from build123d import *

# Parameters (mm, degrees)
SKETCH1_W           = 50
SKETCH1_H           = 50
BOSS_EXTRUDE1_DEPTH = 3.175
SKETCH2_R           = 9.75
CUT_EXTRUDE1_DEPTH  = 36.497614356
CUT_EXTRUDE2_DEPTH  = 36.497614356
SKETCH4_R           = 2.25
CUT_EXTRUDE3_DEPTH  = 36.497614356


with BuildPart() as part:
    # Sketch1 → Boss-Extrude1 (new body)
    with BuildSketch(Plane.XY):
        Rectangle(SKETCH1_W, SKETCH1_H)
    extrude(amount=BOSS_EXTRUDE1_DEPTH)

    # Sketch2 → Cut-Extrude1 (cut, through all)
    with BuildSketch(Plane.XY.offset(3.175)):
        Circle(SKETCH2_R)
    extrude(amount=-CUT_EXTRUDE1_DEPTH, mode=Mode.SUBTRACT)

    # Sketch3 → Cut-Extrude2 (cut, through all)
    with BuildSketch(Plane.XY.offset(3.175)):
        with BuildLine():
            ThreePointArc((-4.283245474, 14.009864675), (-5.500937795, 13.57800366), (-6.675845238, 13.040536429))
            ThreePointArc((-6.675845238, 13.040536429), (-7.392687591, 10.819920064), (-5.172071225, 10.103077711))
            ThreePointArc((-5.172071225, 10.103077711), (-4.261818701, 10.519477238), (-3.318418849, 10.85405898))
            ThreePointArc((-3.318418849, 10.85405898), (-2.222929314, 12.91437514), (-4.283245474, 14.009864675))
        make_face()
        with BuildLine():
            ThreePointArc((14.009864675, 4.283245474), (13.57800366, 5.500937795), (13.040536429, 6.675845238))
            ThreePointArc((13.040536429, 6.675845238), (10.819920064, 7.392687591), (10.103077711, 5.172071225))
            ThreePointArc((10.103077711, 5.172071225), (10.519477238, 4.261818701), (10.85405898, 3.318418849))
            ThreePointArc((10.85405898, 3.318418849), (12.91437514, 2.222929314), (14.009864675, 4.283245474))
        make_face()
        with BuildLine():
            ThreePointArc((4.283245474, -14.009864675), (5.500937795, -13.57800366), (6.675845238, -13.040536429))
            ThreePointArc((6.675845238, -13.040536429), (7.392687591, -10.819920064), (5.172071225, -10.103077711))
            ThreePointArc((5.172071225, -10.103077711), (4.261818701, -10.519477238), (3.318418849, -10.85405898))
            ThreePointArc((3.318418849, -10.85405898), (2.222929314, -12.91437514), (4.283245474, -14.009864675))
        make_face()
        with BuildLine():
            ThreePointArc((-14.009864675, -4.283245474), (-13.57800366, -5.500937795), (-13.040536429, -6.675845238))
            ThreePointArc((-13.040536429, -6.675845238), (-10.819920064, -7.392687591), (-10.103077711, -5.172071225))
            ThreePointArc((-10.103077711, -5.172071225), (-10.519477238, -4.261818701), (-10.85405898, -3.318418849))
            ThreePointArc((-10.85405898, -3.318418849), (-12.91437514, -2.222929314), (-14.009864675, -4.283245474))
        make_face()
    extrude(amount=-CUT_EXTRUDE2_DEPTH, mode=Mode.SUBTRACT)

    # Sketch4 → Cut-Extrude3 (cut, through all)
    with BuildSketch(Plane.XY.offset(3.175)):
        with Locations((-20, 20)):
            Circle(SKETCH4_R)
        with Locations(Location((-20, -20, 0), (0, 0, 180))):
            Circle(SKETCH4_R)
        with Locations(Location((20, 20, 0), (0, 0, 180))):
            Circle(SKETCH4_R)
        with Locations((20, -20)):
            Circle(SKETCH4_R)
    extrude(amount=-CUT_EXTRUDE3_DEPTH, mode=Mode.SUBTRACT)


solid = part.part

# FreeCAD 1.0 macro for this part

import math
import FreeCAD as App
import Part
import Sketcher

V = App.Vector

doc = App.newDocument("Part")
params = doc.addObject("Spreadsheet::Sheet", "Params")
for row, (alias, value) in enumerate([
    ("sketch1_width", "50 mm"),
    ("pad1_length", "3.175 mm"),
    ("sketch2_diameter", "19.5 mm"),
    ("sketch3_radius", "14.65 mm"),
    ("sketch3_radius2", "1.65 mm"),
    ("sketch4_diameter", "4.5 mm"),
], start=1):
    params.set(f"A{row}", alias)
    params.set(f"B{row}", "=" + value)
    params.setAlias(f"B{row}", alias)

body = doc.addObject("PartDesign::Body", "Body")

sketch1 = body.newObject("Sketcher::SketchObject", "Sketch")
sketch1.AttachmentSupport = (doc.getObject("XY_Plane"), [""])
sketch1.MapMode = "FlatFace"
sketch1.addGeometry([
    Part.LineSegment(V(-25, 25, 0), V(-25, -25, 0)),
    Part.LineSegment(V(-25, -25, 0), V(25, -25, 0)),
    Part.LineSegment(V(25, -25, 0), V(25, 25, 0)),
    Part.LineSegment(V(25, 25, 0), V(-25, 25, 0)),
], False)
sketch1.addConstraint([
    Sketcher.Constraint("Coincident", 0, 2, 1, 1),
    Sketcher.Constraint("Coincident", 1, 2, 2, 1),
    Sketcher.Constraint("Coincident", 2, 2, 3, 1),
    Sketcher.Constraint("Coincident", 3, 2, 0, 1),
    Sketcher.Constraint("Vertical", 0),
    Sketcher.Constraint("Horizontal", 1),
    Sketcher.Constraint("Vertical", 2),
    Sketcher.Constraint("Horizontal", 3),
    Sketcher.Constraint("Symmetric", 0, 2, 2, 2, -1, 1),
    Sketcher.Constraint("Equal", 3, 0),
    Sketcher.Constraint("DistanceX", 1, 1, 1, 2, 50.0),
])
sketch1.setExpression("Constraints[10]", "Params.sketch1_width")
pad1 = body.newObject("PartDesign::Pad", "Pad")
pad1.Profile = sketch1
pad1.setExpression("Length", "Params.pad1_length")

sketch2 = body.newObject("Sketcher::SketchObject", "Sketch001")
sketch2.AttachmentSupport = (doc.getObject("XY_Plane"), [""])
sketch2.MapMode = "FlatFace"
sketch2.AttachmentOffset = App.Placement(V(0, 0, 3.175), App.Rotation())
sketch2.addGeometry(Part.Circle(V(0, 0, 0), V(0, 0, 1), 10), False)
sketch2.addConstraint([
    Sketcher.Constraint("Coincident", 0, 3, -1, 1),
    Sketcher.Constraint("Diameter", 0, 19.5),
])
sketch2.setExpression("Constraints[1]", "Params.sketch2_diameter")
pocket1 = body.newObject("PartDesign::Pocket", "Pocket")
pocket1.Profile = sketch2
pocket1.Type = "ThroughAll"

sketch3 = body.newObject("Sketcher::SketchObject", "Sketch002")
sketch3.AttachmentSupport = (doc.getObject("XY_Plane"), [""])
sketch3.MapMode = "FlatFace"
sketch3.AttachmentOffset = App.Placement(V(0, 0, 3.175), App.Rotation())
sketch3.addGeometry([
    Part.ArcOfCircle(Part.Circle(V(0, 0, 0), V(0, 0, 1), 14.6), math.radians(107), math.radians(117.11)),
    Part.ArcOfCircle(Part.Circle(V(-5.9, 11.6, 0), V(0, 0, 1), 1.6), math.radians(117), math.radians(297)),
    Part.ArcOfCircle(Part.Circle(V(0, 0, 0), V(0, 0, 1), 11.3), math.radians(107), math.radians(117.11)),
    Part.ArcOfCircle(Part.Circle(V(-3.8, 12.4, 0), V(0, 0, 1), 1.6), math.radians(-73), math.radians(107)),
    Part.ArcOfCircle(Part.Circle(V(0, 0, 0), V(0, 0, 1), 14.6), math.radians(17), math.radians(27.11)),
    Part.ArcOfCircle(Part.Circle(V(11.6, 5.9, 0), V(0, 0, 1), 1.6), math.radians(27), math.radians(207)),
    Part.ArcOfCircle(Part.Circle(V(0, 0, 0), V(0, 0, 1), 11.3), math.radians(17), math.radians(27.11)),
    Part.ArcOfCircle(Part.Circle(V(12.4, 3.8, 0), V(0, 0, 1), 1.6), math.radians(-163), math.radians(17)),
    Part.ArcOfCircle(Part.Circle(V(0, 0, 0), V(0, 0, 1), 14.6), math.radians(-73), math.radians(-62.89)),
    Part.ArcOfCircle(Part.Circle(V(5.9, -11.6, 0), V(0, 0, 1), 1.6), math.radians(-63), math.radians(117)),
    Part.ArcOfCircle(Part.Circle(V(0, 0, 0), V(0, 0, 1), 11.3), math.radians(-73), math.radians(-62.89)),
    Part.ArcOfCircle(Part.Circle(V(3.8, -12.4, 0), V(0, 0, 1), 1.6), math.radians(107), math.radians(287)),
    Part.ArcOfCircle(Part.Circle(V(0, 0, 0), V(0, 0, 1), 14.6), math.radians(-163), math.radians(-152.89)),
    Part.ArcOfCircle(Part.Circle(V(-11.6, -5.9, 0), V(0, 0, 1), 1.6), math.radians(-153), math.radians(27)),
    Part.ArcOfCircle(Part.Circle(V(0, 0, 0), V(0, 0, 1), 11.3), math.radians(-163), math.radians(-152.89)),
    Part.ArcOfCircle(Part.Circle(V(-12.4, -3.8, 0), V(0, 0, 1), 1.6), math.radians(17), math.radians(197)),
], False)
sketch3.addConstraint([
    Sketcher.Constraint("Tangent", 0, 2, 1, 1),
    Sketcher.Constraint("Tangent", 1, 2, 2, 2),
    Sketcher.Constraint("Tangent", 2, 1, 3, 1),
    Sketcher.Constraint("Tangent", 3, 2, 0, 1),
    Sketcher.Constraint("Tangent", 4, 2, 5, 1),
    Sketcher.Constraint("Tangent", 5, 2, 6, 2),
    Sketcher.Constraint("Tangent", 6, 1, 7, 1),
    Sketcher.Constraint("Tangent", 7, 2, 4, 1),
    Sketcher.Constraint("Tangent", 8, 2, 9, 1),
    Sketcher.Constraint("Tangent", 9, 2, 10, 2),
    Sketcher.Constraint("Tangent", 10, 1, 11, 1),
    Sketcher.Constraint("Tangent", 11, 2, 8, 1),
    Sketcher.Constraint("Tangent", 12, 2, 13, 1),
    Sketcher.Constraint("Tangent", 13, 2, 14, 2),
    Sketcher.Constraint("Tangent", 14, 1, 15, 1),
    Sketcher.Constraint("Tangent", 15, 2, 12, 1),
    Sketcher.Constraint("Coincident", 0, 3, -1, 1),
    Sketcher.Constraint("Coincident", 2, 3, -1, 1),
    Sketcher.Constraint("Coincident", 4, 3, -1, 1),
    Sketcher.Constraint("Coincident", 6, 3, -1, 1),
    Sketcher.Constraint("Coincident", 8, 3, -1, 1),
    Sketcher.Constraint("Coincident", 10, 3, -1, 1),
    Sketcher.Constraint("Coincident", 12, 3, -1, 1),
    Sketcher.Constraint("Coincident", 14, 3, -1, 1),
    Sketcher.Constraint("Equal", 0, 4),
    Sketcher.Constraint("Equal", 3, 5),
    Sketcher.Constraint("Equal", 4, 8),
    Sketcher.Constraint("Equal", 7, 9),
    Sketcher.Constraint("Equal", 8, 12),
    Sketcher.Constraint("Equal", 11, 13),
    Sketcher.Constraint("Radius", 0, 14.65),
    Sketcher.Constraint("Radius", 1, 1.65),
    Sketcher.Constraint("DistanceX", 0, 2, 3, 2, 2.3926),
    Sketcher.Constraint("DistanceY", 7, 2, 4, 2, 2.3926),
    Sketcher.Constraint("DistanceX", 11, 2, 8, 2, 2.3926),
    Sketcher.Constraint("DistanceY", 12, 2, 15, 2, 2.3926),
    Sketcher.Constraint("DistanceX", 1, 3, -1, 1, 5.923958),
    Sketcher.Constraint("DistanceY", -1, 1, 5, 3, 5.923958),
    Sketcher.Constraint("DistanceX", -1, 1, 9, 3, 5.923958),
    Sketcher.Constraint("DistanceY", 13, 3, -1, 1, 5.923958),
])
sketch3.setExpression("Constraints[30]", "Params.sketch3_radius")
sketch3.setExpression("Constraints[31]", "Params.sketch3_radius2")
pocket2 = body.newObject("PartDesign::Pocket", "Pocket001")
pocket2.Profile = sketch3
pocket2.Type = "ThroughAll"

sketch4 = body.newObject("Sketcher::SketchObject", "Sketch003")
sketch4.AttachmentSupport = (doc.getObject("XY_Plane"), [""])
sketch4.MapMode = "FlatFace"
sketch4.AttachmentOffset = App.Placement(V(0, 0, 3.175), App.Rotation())
sketch4.addGeometry([
    Part.Circle(V(-20, 20, 0), V(0, 0, 1), 2.2),
    Part.Circle(V(-20, -20, 0), V(0, 0, 1), 2.2),
    Part.Circle(V(20, 20, 0), V(0, 0, 1), 2.2),
    Part.Circle(V(20, -20, 0), V(0, 0, 1), 2.2),
], False)
sketch4.addConstraint([
    Sketcher.Constraint("Equal", 0, 1),
    Sketcher.Constraint("Equal", 1, 2),
    Sketcher.Constraint("Equal", 2, 3),
    Sketcher.Constraint("Symmetric", 1, 3, 2, 3, -1, 1),
    Sketcher.Constraint("Symmetric", 0, 3, 3, 3, -1, 1),
    Sketcher.Constraint("Symmetric", 0, 3, 2, 3, -2),
    Sketcher.Constraint("Diameter", 0, 4.5),
    Sketcher.Constraint("DistanceX", 0, 3, -1, 1, 20.0),
    Sketcher.Constraint("DistanceY", -1, 1, 0, 3, 20.0),
])
sketch4.setExpression("Constraints[6]", "Params.sketch4_diameter")
pocket3 = body.newObject("PartDesign::Pocket", "Pocket002")
pocket3.Profile = sketch4
pocket3.Type = "ThroughAll"

doc.recompute()
